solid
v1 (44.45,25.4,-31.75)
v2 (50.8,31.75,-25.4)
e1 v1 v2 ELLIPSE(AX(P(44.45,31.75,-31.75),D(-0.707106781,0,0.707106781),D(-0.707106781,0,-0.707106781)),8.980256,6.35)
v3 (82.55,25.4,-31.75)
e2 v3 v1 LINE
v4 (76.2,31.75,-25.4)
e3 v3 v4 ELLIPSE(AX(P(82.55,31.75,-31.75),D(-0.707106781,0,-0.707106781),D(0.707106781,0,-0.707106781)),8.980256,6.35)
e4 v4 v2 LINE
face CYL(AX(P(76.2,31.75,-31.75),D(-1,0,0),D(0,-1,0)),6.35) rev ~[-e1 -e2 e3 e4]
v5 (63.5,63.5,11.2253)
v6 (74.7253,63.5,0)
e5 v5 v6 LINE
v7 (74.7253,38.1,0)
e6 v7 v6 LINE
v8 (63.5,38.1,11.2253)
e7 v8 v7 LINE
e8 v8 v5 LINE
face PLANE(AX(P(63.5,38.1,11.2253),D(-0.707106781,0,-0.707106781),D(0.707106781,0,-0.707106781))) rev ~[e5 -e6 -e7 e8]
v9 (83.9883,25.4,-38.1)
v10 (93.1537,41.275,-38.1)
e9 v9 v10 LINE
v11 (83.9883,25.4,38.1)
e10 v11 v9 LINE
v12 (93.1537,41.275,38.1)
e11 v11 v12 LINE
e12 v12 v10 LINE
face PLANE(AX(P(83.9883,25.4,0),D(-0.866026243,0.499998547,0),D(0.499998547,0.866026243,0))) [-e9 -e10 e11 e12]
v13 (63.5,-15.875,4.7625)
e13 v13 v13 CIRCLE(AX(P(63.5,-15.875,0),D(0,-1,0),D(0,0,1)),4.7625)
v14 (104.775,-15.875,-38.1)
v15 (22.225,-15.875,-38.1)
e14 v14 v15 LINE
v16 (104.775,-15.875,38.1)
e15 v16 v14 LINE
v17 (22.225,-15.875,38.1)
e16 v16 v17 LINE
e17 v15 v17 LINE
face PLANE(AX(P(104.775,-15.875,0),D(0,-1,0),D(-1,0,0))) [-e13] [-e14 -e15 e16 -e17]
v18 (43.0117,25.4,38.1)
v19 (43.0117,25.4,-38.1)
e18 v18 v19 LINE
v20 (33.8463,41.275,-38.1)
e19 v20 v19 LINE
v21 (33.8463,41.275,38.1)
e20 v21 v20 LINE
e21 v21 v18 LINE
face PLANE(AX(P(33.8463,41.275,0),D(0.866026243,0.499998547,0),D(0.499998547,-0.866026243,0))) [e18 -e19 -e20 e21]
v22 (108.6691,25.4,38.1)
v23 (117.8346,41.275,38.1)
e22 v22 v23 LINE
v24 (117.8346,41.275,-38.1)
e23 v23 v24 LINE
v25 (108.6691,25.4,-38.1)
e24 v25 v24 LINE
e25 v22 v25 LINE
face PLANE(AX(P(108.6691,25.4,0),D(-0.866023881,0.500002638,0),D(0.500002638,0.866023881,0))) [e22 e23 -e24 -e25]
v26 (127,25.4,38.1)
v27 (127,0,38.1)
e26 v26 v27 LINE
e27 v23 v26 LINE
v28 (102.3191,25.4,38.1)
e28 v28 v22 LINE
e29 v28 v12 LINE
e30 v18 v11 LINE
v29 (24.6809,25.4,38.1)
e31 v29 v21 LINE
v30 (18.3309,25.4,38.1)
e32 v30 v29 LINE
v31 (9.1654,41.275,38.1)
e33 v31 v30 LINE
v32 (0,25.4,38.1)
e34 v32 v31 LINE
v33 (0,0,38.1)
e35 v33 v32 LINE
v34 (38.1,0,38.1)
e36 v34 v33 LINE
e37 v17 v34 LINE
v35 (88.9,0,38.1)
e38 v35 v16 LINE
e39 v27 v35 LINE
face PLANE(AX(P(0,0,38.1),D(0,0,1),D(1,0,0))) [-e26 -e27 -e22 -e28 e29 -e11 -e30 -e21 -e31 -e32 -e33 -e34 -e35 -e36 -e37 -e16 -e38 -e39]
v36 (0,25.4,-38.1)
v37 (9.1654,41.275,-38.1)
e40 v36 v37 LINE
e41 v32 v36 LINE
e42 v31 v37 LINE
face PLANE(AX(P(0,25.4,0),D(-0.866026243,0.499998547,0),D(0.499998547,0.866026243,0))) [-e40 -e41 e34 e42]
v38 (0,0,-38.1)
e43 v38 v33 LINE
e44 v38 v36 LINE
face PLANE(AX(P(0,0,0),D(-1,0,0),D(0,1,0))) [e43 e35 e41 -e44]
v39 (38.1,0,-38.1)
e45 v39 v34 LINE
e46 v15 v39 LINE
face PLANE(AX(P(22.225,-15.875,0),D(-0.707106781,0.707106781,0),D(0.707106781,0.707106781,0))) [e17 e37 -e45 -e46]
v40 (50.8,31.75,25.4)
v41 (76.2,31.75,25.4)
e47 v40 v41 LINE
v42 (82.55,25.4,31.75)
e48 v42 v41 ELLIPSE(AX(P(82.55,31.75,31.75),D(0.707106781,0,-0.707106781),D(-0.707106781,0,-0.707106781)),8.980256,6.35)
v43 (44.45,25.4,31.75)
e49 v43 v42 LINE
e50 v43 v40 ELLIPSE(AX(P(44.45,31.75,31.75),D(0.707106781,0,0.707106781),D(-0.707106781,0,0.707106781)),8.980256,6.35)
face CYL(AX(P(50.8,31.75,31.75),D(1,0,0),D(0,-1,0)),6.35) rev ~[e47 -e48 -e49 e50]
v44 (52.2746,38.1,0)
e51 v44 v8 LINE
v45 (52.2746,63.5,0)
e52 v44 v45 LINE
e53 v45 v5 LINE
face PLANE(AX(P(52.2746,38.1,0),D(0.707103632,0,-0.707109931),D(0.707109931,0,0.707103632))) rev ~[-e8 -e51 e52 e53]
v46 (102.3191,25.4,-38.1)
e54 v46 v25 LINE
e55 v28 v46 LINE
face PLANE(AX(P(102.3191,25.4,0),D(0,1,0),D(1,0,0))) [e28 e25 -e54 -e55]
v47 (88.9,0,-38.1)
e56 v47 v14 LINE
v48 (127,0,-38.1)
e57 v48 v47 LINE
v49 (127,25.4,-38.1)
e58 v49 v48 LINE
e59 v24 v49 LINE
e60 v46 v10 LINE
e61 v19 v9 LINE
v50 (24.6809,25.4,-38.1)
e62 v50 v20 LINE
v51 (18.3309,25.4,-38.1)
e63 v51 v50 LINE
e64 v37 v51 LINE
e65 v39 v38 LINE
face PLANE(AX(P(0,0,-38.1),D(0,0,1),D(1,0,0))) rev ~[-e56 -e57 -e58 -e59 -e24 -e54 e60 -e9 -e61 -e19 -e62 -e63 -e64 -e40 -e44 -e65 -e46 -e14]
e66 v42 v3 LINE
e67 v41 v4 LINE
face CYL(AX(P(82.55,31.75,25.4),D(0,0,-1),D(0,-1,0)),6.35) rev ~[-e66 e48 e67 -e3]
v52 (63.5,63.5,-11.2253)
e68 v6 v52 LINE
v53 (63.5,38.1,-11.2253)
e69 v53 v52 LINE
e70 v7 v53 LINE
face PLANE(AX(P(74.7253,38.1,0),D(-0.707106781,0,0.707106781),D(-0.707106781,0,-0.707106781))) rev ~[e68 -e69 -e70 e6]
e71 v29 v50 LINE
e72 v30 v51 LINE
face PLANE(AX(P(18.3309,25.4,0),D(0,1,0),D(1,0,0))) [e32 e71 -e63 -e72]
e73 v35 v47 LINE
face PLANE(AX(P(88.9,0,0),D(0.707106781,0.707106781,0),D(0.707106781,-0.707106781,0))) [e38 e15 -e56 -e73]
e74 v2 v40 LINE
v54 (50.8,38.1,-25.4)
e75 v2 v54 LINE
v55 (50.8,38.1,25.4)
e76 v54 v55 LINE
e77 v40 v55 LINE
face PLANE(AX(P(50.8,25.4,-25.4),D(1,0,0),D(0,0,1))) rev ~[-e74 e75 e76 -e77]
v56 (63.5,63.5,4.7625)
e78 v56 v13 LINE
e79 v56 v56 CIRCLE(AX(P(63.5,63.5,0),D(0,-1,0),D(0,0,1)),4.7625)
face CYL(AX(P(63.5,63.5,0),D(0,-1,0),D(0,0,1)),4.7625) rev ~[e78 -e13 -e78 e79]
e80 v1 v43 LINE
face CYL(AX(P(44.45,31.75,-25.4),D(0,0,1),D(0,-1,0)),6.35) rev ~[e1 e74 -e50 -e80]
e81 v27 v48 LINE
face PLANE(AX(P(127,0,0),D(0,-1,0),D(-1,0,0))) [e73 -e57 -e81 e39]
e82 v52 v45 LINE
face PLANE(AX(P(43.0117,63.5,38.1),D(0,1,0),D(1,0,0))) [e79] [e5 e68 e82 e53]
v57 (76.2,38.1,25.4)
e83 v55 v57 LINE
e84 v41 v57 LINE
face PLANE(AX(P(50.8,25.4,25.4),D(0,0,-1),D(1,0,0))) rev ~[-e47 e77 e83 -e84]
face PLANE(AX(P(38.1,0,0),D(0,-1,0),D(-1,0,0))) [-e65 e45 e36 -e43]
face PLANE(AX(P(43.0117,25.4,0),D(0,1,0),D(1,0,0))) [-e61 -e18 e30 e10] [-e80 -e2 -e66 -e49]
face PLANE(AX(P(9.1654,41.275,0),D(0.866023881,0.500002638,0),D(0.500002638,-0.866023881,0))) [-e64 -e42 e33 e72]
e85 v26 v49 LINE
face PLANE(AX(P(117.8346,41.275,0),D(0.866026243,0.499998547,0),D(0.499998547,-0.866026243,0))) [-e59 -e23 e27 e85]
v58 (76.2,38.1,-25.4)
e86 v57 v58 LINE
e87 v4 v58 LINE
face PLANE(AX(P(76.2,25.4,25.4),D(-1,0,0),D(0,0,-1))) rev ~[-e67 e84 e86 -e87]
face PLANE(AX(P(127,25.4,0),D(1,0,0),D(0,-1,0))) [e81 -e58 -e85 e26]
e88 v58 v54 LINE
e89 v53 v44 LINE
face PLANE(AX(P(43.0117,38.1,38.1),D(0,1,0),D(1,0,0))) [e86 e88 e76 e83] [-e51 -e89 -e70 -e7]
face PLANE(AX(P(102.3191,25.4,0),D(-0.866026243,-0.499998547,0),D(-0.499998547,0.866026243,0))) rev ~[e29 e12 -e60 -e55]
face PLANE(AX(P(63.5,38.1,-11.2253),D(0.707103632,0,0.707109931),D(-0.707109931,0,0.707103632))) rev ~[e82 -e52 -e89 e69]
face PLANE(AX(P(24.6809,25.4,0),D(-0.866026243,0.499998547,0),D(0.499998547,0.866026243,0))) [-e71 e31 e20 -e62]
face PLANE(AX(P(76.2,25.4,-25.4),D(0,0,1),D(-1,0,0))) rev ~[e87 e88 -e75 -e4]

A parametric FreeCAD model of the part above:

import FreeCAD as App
import Part
import Sketcher

V = App.Vector
Q = App.Units.Quantity


def edges_at(feature, points):
    """Names of the edges that pass closest to the given points."""
    edges = feature.Shape.Edges
    near = lambda p: min(range(len(edges)), key=lambda i: edges[i].distToShape(Part.Vertex(*p))[0])
    return sorted({f"Edge{near(p) + 1}" for p in points})


def add_polygon(sketch, points):
    """Adds a closed chain of lines whose ends are joined by coincident constraints."""
    first, n = sketch.GeometryCount, len(points)
    for a, b in zip(points, points[1:] + points[:1]):
        sketch.addGeometry(Part.LineSegment(App.Vector(*a, 0), App.Vector(*b, 0)), False)
    for i in range(n):
        sketch.addConstraint(Sketcher.Constraint("Coincident", first + i, 2, first + (i + 1) % n, 1))

doc = App.newDocument("Part")
body = doc.addObject("PartDesign::Body", "Body")

sketch1 = body.newObject("Sketcher::SketchObject", "Sketch")
sketch1.AttachmentSupport = (doc.getObject("XY_Plane"), [""])
sketch1.MapMode = "FlatFace"
add_polygon(sketch1, [(0, 25), (0, 0), (38, 0), (22, -16), (105, -16), (89, 0), (127, 0), (127, 25), (118, 41), (109, 25), (102, 25), (93, 41), (84, 25), (43, 25), (34, 41), (25, 25), (18, 25), (9, 41)])
sketch1.addConstraint(Sketcher.Constraint("Vertical", 0))
sketch1.addConstraint(Sketcher.Constraint("Horizontal", 1))
sketch1.addConstraint(Sketcher.Constraint("Horizontal", 3))
sketch1.addConstraint(Sketcher.Constraint("Horizontal", 5))
sketch1.addConstraint(Sketcher.Constraint("Vertical", 6))
sketch1.addConstraint(Sketcher.Constraint("Horizontal", 9))
sketch1.addConstraint(Sketcher.Constraint("Horizontal", 12))
sketch1.addConstraint(Sketcher.Constraint("Horizontal", 15))
sketch1.addConstraint(Sketcher.Constraint("Coincident", 0, 2, -1, 1))
sketch1.addConstraint(Sketcher.Constraint("PointOnObject", 4, 2, -1))
sketch1.addConstraint(Sketcher.Constraint("Perpendicular", 2, 4))
sketch1.addConstraint(Sketcher.Constraint("Parallel", 7, 10))
sketch1.addConstraint(Sketcher.Constraint("Parallel", 8, 11))
sketch1.addConstraint(Sketcher.Constraint("Parallel", 10, 13))
sketch1.addConstraint(Sketcher.Constraint("Parallel", 11, 14))
sketch1.addConstraint(Sketcher.Constraint("Parallel", 13, 16))
sketch1.addConstraint(Sketcher.Constraint("Parallel", 14, 17))
sketch1.addConstraint(Sketcher.Constraint("Horizontal", 6, 2, 8, 2))
sketch1.addConstraint(Sketcher.Constraint("Horizontal", 7, 2, 10, 2))
sketch1.addConstraint(Sketcher.Constraint("Horizontal", 9, 2, 11, 2))
sketch1.addConstraint(Sketcher.Constraint("Horizontal", 10, 2, 13, 2))
sketch1.addConstraint(Sketcher.Constraint("Horizontal", 12, 2, 14, 2))
sketch1.addConstraint(Sketcher.Constraint("Horizontal", 13, 2, 16, 2))
sketch1.addConstraint(Sketcher.Constraint("Horizontal", 15, 2, 17, 2))
sketch1.addConstraint(Sketcher.Constraint("Equal", 1, 5))
sketch1.addConstraint(Sketcher.Constraint("Equal", 9, 15))
sketch1.addConstraint(Sketcher.Constraint("Equal", 2, 4))
sketch1.addConstraint(Sketcher.Constraint("Equal", 7, 8))
sketch1.addConstraint(Sketcher.Constraint("DistanceY", 0, 2, 0, 1, Q("1 in")))
sketch1.addConstraint(Sketcher.Constraint("DistanceX", 1, 1, 1, 2, Q("1.5 in")))
sketch1.addConstraint(Sketcher.Constraint("DistanceX", -1, 1, 5, 2, Q("5 in")))
sketch1.addConstraint(Sketcher.Constraint("DistanceX", 9, 2, 9, 1, Q("0.25 in")))
sketch1.addConstraint(Sketcher.Constraint("DistanceY", 2, 2, -1, 1, Q("0.625 in")))
sketch1.addConstraint(Sketcher.Constraint("Angle", 7, Q("120 deg")))
sketch1.addConstraint(Sketcher.Constraint("DistanceY", 6, 2, 7, 2, Q("0.625 in")))
pad1 = body.newObject("PartDesign::Pad", "Pad")
pad1.Profile = sketch1
pad1.Length = Q("3 in")
pad1.Midplane = True

sketch2 = body.newObject("Sketcher::SketchObject", "Sketch001")
sketch2.AttachmentSupport = (doc.getObject("XZ_Plane"), [""])
sketch2.MapMode = "FlatFace"
sketch2.AttachmentOffset = App.Placement(V(0, 0, -1 * 25.4), App.Rotation())
add_polygon(sketch2, [(51, -25), (51, 25), (76, 25), (76, -25)])
sketch2.addConstraint(Sketcher.Constraint("Vertical", 0))
sketch2.addConstraint(Sketcher.Constraint("Horizontal", 1))
sketch2.addConstraint(Sketcher.Constraint("Vertical", 2))
sketch2.addConstraint(Sketcher.Constraint("Horizontal", 3))
sketch2.addConstraint(Sketcher.Constraint("DistanceX", 1, 1, 1, 2, Q("1 in")))
sketch2.addConstraint(Sketcher.Constraint("DistanceY", 0, 1, 0, 2, Q("2 in")))
sketch2.addConstraint(Sketcher.Constraint("DistanceX", -1, 1, 0, 2, Q("2 in")))
sketch2.addConstraint(Sketcher.Constraint("DistanceY", -1, 1, 0, 2, Q("1 in")))
pad2 = body.newObject("PartDesign::Pad", "Pad001")
pad2.Profile = sketch2
pad2.Length = Q("0.5 in")
pad2.Reversed = True

sketch3 = body.newObject("Sketcher::SketchObject", "Sketch002")
sketch3.AttachmentSupport = (doc.getObject("XZ_Plane"), [""])
sketch3.MapMode = "FlatFace"
sketch3.AttachmentOffset = App.Placement(V(0, 0, -1.5 * 25.4), App.Rotation())
add_polygon(sketch3, [(64, -11), (52, 0), (64, 11), (75, 0)])
sketch3.addConstraint(Sketcher.Constraint("Symmetric", 1, 2, 3, 2, -1))
sketch3.addConstraint(Sketcher.Constraint("PointOnObject", 0, 2, -1))
sketch3.addConstraint(Sketcher.Constraint("PointOnObject", 2, 2, -1))
sketch3.addConstraint(Sketcher.Constraint("Perpendicular", 0, 1))
sketch3.addConstraint(Sketcher.Constraint("Perpendicular", 1, 2))
sketch3.addConstraint(Sketcher.Constraint("Distance", 0, Q("0.625 in")))
sketch3.addConstraint(Sketcher.Constraint("DistanceX", -1, 1, 1, 2, Q("2.5 in")))
pad3 = body.newObject("PartDesign::Pad", "Pad002")
pad3.Profile = sketch3
pad3.Length = Q("1 in")
pad3.Reversed = True

sketch4 = body.newObject("Sketcher::SketchObject", "Sketch003")
sketch4.AttachmentSupport = (doc.getObject("XZ_Plane"), [""])
sketch4.MapMode = "FlatFace"
sketch4.AttachmentOffset = App.Placement(V(0, 0, -2.5 * 25.4), App.Rotation())
sketch4.addGeometry(Part.Circle(V(63.5, 0, 0), V(0, 0, 1), 4.8), False)
sketch4.addConstraint(Sketcher.Constraint("PointOnObject", 0, 3, -1))
sketch4.addConstraint(Sketcher.Constraint("Diameter", 0, Q("0.375 in")))
sketch4.addConstraint(Sketcher.Constraint("DistanceX", -1, 1, 0, 3, Q("2.5 in")))
doc.recompute()
hole = body.newObject("PartDesign::Hole", "Hole")
hole.Profile = sketch4
hole.ThreadType = "None"
hole.Diameter = Q("0.375 in")
hole.DepthType = "ThroughAll"
hole.Reversed = True
doc.recompute()

fillet = body.newObject("PartDesign::Fillet", "Fillet")
fillet.Base = (hole, edges_at(hole, [
    (76.2, 25.4, 0),
    (63.5, 25.4, -25.4),
    (50.8, 25.4, 0),
    (63.5, 25.4, 25.4),
]))
fillet.Radius = Q("0.25 in")

doc.recompute()
